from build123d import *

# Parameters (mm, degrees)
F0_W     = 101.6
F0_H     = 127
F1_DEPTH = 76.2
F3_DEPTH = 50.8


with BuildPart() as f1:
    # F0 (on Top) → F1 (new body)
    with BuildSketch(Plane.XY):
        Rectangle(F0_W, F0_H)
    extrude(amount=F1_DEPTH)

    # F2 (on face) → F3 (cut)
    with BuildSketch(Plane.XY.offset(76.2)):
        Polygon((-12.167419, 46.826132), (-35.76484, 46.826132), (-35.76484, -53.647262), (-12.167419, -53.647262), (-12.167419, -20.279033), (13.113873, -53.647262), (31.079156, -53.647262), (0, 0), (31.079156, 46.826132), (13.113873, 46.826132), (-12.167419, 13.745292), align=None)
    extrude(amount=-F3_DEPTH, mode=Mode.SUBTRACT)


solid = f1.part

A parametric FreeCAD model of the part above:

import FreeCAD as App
import Part
import Sketcher
from FreeCAD import Vector
Q = App.Units.Quantity

doc = App.newDocument("Part")
body = doc.addObject("PartDesign::Body", "Body")

# Sketch on XY plane
sketch1 = body.newObject("Sketcher::SketchObject", "Sketch")
sketch1.AttachmentSupport = (doc.getObject("XY_Plane"), [""])
sketch1.MapMode = "FlatFace"
sketch1.addGeometry([
    Part.LineSegment(Vector(-51, 64, 0), Vector(-51, -64, 0)),
    Part.LineSegment(Vector(-51, -64, 0), Vector(51, -64, 0)),
    Part.LineSegment(Vector(51, -64, 0), Vector(51, 64, 0)),
    Part.LineSegment(Vector(51, 64, 0), Vector(-51, 64, 0)),
], False)
sketch1.addConstraint([
    Sketcher.Constraint("Coincident", 0, 2, 1, 1),
    Sketcher.Constraint("Coincident", 1, 2, 2, 1),
    Sketcher.Constraint("Coincident", 2, 2, 3, 1),
    Sketcher.Constraint("Coincident", 3, 2, 0, 1),
    Sketcher.Constraint("Vertical", 0),
    Sketcher.Constraint("Horizontal", 1),
    Sketcher.Constraint("Vertical", 2),
    Sketcher.Constraint("Horizontal", 3),
    Sketcher.Constraint("Symmetric", 0, 2, 2, 2, -1, 1),
    Sketcher.Constraint("DistanceX", 1, 1, 1, 2, Q("4 in")),
    Sketcher.Constraint("DistanceY", 0, 2, 0, 1, Q("5 in")),
])
pad1 = body.newObject("PartDesign::Pad", "Pad")
pad1.Profile = sketch1
pad1.Length = Q("3 in")

# Sketch on XY plane
sketch2 = body.newObject("Sketcher::SketchObject", "Sketch001")
sketch2.AttachmentSupport = (doc.getObject("XY_Plane"), [""])
sketch2.MapMode = "FlatFace"
sketch2.AttachmentOffset = App.Placement(Vector(0, 0, 3 * 25.4), App.Rotation())
sketch2.addGeometry([
    Part.LineSegment(Vector(-12, 47, 0), Vector(-36, 47, 0)),  # 0
    Part.LineSegment(Vector(-36, 47, 0), Vector(-36, -54, 0)),  # 1
    Part.LineSegment(Vector(-36, -54, 0), Vector(-12, -54, 0)),  # 2
    Part.LineSegment(Vector(-12, -54, 0), Vector(-12, -20, 0)),  # 3
    Part.LineSegment(Vector(-12, -20, 0), Vector(13, -54, 0)),  # 4
    Part.LineSegment(Vector(13, -54, 0), Vector(31, -54, 0)),  # 5
    Part.LineSegment(Vector(31, -54, 0), Vector(0, 0, 0)),  # 6
    Part.LineSegment(Vector(0, 0, 0), Vector(31, 47, 0)),  # 7
    Part.LineSegment(Vector(31, 47, 0), Vector(13, 47, 0)),  # 8
    Part.LineSegment(Vector(13, 47, 0), Vector(-12, 14, 0)),  # 9
    Part.LineSegment(Vector(-12, 14, 0), Vector(-12, 47, 0)),  # 10
], False)
sketch2.addConstraint([
    Sketcher.Constraint("Coincident", 0, 2, 1, 1),
    Sketcher.Constraint("Coincident", 1, 2, 2, 1),
    Sketcher.Constraint("Coincident", 2, 2, 3, 1),
    Sketcher.Constraint("Coincident", 3, 2, 4, 1),
    Sketcher.Constraint("Coincident", 4, 2, 5, 1),
    Sketcher.Constraint("Coincident", 5, 2, 6, 1),
    Sketcher.Constraint("Coincident", 6, 2, 7, 1),
    Sketcher.Constraint("Coincident", 7, 2, 8, 1),
    Sketcher.Constraint("Coincident", 8, 2, 9, 1),
    Sketcher.Constraint("Coincident", 9, 2, 10, 1),
    Sketcher.Constraint("Coincident", 10, 2, 0, 1),
    Sketcher.Constraint("Horizontal", 0),
    Sketcher.Constraint("Vertical", 1),
    Sketcher.Constraint("Horizontal", 2),
    Sketcher.Constraint("Vertical", 3),
    Sketcher.Constraint("Horizontal", 5),
    Sketcher.Constraint("Horizontal", 8),
    Sketcher.Constraint("Vertical", 10),
    Sketcher.Constraint("Coincident", 6, 2, -1, 1),
    Sketcher.Constraint("Horizontal", 2, 2, 4, 2),
    Sketcher.Constraint("Horizontal", 0, 2, 7, 2),
    Sketcher.Constraint("Vertical", 5, 2, 7, 2),
    Sketcher.Constraint("Vertical", 4, 2, 8, 2),
    Sketcher.Constraint("Vertical", 3, 2, 9, 2),
    Sketcher.Constraint("DistanceX", 0, 2, 0, 1, 23.597421),
    Sketcher.Constraint("DistanceY", 3, 1, 3, 2, 33.368229),
    Sketcher.Constraint("DistanceY", 10, 1, 10, 2, 33.08084),
    Sketcher.Constraint("Distance", 7, 56.201429),
    Sketcher.Constraint("Distance", 9, 41.63515),
    Sketcher.Constraint("DistanceX", 5, 1, 5, 2, 17.965283),
    Sketcher.Constraint("DistanceY", 1, 2, 1, 1, 100.473394),
    Sketcher.Constraint("DistanceX", 0, 2, -1, 1, 35.76484),
])
pocket1 = body.newObject("PartDesign::Pocket", "Pocket")
pocket1.Profile = sketch2
pocket1.Length = Q("2 in")

doc.recompute()
